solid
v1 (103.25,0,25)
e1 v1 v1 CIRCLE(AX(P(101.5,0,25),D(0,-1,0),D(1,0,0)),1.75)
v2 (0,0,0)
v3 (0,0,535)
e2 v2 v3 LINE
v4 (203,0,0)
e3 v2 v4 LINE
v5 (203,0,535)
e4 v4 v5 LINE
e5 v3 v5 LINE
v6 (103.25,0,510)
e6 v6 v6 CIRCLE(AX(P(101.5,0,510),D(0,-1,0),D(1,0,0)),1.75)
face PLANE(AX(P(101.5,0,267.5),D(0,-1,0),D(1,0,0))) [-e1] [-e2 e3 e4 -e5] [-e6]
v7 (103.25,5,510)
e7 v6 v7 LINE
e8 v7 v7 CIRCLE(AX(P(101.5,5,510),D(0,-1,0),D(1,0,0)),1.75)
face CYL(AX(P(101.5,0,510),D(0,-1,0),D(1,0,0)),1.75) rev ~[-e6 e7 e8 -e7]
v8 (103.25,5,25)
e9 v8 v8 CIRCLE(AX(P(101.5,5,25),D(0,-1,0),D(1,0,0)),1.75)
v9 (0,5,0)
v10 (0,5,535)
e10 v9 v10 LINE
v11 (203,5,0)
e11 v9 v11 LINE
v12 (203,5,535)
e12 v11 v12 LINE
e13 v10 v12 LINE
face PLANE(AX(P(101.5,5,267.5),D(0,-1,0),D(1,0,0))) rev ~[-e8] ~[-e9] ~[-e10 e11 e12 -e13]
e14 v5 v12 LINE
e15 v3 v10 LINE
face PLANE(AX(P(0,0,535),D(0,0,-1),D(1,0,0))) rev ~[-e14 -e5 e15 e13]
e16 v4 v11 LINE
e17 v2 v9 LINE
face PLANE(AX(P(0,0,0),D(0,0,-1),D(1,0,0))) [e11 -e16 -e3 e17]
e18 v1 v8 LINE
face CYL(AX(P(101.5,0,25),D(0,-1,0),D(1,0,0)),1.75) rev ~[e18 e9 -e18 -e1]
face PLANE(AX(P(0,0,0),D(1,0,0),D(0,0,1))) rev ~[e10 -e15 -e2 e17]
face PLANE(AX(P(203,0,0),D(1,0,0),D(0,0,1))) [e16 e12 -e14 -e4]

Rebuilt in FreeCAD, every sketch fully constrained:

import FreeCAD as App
import Part
import Sketcher
from FreeCAD import Vector
Q = App.Units.Quantity

doc = App.newDocument("Part")
params = doc.addObject("Spreadsheet::Sheet", "Params")
for row, (alias, value) in enumerate([
    ("sketch1_width", "203 mm"),
    ("sketch1_height", "535 mm"),
    ("pad1_length", "5 mm"),
    ("sketch2_diameter", "3.5 mm"),
    ("pocket1_length", "25 mm"),
], start=1):
    params.set(f"A{row}", alias)
    params.set(f"B{row}", "=" + value)
    params.setAlias(f"B{row}", alias)

body = doc.addObject("PartDesign::Body", "Body")

# Sketch on XZ plane
sketch1 = body.newObject("Sketcher::SketchObject", "Sketch")
sketch1.AttachmentSupport = (doc.getObject("XZ_Plane"), [""])
sketch1.MapMode = "FlatFace"
sketch1.addGeometry([
    Part.LineSegment(Vector(0, 535, 0), Vector(0, 0, 0)),
    Part.LineSegment(Vector(0, 0, 0), Vector(203, 0, 0)),
    Part.LineSegment(Vector(203, 0, 0), Vector(203, 535, 0)),
    Part.LineSegment(Vector(203, 535, 0), Vector(0, 535, 0)),
], False)
sketch1.addConstraint([
    Sketcher.Constraint("Coincident", 0, 2, 1, 1),
    Sketcher.Constraint("Coincident", 1, 2, 2, 1),
    Sketcher.Constraint("Coincident", 2, 2, 3, 1),
    Sketcher.Constraint("Coincident", 3, 2, 0, 1),
    Sketcher.Constraint("Vertical", 0),
    Sketcher.Constraint("Horizontal", 1),
    Sketcher.Constraint("Vertical", 2),
    Sketcher.Constraint("Horizontal", 3),
    Sketcher.Constraint("Coincident", 0, 2, -1, 1),
    Sketcher.Constraint("DistanceX", 1, 1, 1, 2, Q("203 mm")),
    Sketcher.Constraint("DistanceY", 0, 2, 0, 1, Q("535 mm")),
])
sketch1.setExpression("Constraints[9]", "Params.sketch1_width")
sketch1.setExpression("Constraints[10]", "Params.sketch1_height")
pad1 = body.newObject("PartDesign::Pad", "Pad")
pad1.Profile = sketch1
pad1.setExpression("Length", "Params.pad1_length")
pad1.Reversed = True

# Sketch on XZ plane
sketch2 = body.newObject("Sketcher::SketchObject", "Sketch001")
sketch2.AttachmentSupport = (doc.getObject("XZ_Plane"), [""])
sketch2.MapMode = "FlatFace"
sketch2.addGeometry([
    Part.Circle(Vector(101.5, 510, 0), Vector(0, 0, 1), 1.8),
    Part.Circle(Vector(101.5, 25, 0), Vector(0, 0, 1), 1.8),
], False)
sketch2.addConstraint([
    Sketcher.Constraint("Equal", 0, 1),
    Sketcher.Constraint("Vertical", 0, 3, 1, 3),
    Sketcher.Constraint("Diameter", 0, Q("3.5 mm")),
    Sketcher.Constraint("DistanceY", -1, 1, 0, 3, Q("510 mm")),
    Sketcher.Constraint("DistanceY", -1, 1, 1, 3, Q("25 mm")),
    Sketcher.Constraint("DistanceX", -1, 1, 0, 3, Q("101.5 mm")),
])
sketch2.setExpression("Constraints[2]", "Params.sketch2_diameter")
pocket1 = body.newObject("PartDesign::Pocket", "Pocket")
pocket1.Profile = sketch2
pocket1.setExpression("Length", "Params.pocket1_length")

doc.recompute()
